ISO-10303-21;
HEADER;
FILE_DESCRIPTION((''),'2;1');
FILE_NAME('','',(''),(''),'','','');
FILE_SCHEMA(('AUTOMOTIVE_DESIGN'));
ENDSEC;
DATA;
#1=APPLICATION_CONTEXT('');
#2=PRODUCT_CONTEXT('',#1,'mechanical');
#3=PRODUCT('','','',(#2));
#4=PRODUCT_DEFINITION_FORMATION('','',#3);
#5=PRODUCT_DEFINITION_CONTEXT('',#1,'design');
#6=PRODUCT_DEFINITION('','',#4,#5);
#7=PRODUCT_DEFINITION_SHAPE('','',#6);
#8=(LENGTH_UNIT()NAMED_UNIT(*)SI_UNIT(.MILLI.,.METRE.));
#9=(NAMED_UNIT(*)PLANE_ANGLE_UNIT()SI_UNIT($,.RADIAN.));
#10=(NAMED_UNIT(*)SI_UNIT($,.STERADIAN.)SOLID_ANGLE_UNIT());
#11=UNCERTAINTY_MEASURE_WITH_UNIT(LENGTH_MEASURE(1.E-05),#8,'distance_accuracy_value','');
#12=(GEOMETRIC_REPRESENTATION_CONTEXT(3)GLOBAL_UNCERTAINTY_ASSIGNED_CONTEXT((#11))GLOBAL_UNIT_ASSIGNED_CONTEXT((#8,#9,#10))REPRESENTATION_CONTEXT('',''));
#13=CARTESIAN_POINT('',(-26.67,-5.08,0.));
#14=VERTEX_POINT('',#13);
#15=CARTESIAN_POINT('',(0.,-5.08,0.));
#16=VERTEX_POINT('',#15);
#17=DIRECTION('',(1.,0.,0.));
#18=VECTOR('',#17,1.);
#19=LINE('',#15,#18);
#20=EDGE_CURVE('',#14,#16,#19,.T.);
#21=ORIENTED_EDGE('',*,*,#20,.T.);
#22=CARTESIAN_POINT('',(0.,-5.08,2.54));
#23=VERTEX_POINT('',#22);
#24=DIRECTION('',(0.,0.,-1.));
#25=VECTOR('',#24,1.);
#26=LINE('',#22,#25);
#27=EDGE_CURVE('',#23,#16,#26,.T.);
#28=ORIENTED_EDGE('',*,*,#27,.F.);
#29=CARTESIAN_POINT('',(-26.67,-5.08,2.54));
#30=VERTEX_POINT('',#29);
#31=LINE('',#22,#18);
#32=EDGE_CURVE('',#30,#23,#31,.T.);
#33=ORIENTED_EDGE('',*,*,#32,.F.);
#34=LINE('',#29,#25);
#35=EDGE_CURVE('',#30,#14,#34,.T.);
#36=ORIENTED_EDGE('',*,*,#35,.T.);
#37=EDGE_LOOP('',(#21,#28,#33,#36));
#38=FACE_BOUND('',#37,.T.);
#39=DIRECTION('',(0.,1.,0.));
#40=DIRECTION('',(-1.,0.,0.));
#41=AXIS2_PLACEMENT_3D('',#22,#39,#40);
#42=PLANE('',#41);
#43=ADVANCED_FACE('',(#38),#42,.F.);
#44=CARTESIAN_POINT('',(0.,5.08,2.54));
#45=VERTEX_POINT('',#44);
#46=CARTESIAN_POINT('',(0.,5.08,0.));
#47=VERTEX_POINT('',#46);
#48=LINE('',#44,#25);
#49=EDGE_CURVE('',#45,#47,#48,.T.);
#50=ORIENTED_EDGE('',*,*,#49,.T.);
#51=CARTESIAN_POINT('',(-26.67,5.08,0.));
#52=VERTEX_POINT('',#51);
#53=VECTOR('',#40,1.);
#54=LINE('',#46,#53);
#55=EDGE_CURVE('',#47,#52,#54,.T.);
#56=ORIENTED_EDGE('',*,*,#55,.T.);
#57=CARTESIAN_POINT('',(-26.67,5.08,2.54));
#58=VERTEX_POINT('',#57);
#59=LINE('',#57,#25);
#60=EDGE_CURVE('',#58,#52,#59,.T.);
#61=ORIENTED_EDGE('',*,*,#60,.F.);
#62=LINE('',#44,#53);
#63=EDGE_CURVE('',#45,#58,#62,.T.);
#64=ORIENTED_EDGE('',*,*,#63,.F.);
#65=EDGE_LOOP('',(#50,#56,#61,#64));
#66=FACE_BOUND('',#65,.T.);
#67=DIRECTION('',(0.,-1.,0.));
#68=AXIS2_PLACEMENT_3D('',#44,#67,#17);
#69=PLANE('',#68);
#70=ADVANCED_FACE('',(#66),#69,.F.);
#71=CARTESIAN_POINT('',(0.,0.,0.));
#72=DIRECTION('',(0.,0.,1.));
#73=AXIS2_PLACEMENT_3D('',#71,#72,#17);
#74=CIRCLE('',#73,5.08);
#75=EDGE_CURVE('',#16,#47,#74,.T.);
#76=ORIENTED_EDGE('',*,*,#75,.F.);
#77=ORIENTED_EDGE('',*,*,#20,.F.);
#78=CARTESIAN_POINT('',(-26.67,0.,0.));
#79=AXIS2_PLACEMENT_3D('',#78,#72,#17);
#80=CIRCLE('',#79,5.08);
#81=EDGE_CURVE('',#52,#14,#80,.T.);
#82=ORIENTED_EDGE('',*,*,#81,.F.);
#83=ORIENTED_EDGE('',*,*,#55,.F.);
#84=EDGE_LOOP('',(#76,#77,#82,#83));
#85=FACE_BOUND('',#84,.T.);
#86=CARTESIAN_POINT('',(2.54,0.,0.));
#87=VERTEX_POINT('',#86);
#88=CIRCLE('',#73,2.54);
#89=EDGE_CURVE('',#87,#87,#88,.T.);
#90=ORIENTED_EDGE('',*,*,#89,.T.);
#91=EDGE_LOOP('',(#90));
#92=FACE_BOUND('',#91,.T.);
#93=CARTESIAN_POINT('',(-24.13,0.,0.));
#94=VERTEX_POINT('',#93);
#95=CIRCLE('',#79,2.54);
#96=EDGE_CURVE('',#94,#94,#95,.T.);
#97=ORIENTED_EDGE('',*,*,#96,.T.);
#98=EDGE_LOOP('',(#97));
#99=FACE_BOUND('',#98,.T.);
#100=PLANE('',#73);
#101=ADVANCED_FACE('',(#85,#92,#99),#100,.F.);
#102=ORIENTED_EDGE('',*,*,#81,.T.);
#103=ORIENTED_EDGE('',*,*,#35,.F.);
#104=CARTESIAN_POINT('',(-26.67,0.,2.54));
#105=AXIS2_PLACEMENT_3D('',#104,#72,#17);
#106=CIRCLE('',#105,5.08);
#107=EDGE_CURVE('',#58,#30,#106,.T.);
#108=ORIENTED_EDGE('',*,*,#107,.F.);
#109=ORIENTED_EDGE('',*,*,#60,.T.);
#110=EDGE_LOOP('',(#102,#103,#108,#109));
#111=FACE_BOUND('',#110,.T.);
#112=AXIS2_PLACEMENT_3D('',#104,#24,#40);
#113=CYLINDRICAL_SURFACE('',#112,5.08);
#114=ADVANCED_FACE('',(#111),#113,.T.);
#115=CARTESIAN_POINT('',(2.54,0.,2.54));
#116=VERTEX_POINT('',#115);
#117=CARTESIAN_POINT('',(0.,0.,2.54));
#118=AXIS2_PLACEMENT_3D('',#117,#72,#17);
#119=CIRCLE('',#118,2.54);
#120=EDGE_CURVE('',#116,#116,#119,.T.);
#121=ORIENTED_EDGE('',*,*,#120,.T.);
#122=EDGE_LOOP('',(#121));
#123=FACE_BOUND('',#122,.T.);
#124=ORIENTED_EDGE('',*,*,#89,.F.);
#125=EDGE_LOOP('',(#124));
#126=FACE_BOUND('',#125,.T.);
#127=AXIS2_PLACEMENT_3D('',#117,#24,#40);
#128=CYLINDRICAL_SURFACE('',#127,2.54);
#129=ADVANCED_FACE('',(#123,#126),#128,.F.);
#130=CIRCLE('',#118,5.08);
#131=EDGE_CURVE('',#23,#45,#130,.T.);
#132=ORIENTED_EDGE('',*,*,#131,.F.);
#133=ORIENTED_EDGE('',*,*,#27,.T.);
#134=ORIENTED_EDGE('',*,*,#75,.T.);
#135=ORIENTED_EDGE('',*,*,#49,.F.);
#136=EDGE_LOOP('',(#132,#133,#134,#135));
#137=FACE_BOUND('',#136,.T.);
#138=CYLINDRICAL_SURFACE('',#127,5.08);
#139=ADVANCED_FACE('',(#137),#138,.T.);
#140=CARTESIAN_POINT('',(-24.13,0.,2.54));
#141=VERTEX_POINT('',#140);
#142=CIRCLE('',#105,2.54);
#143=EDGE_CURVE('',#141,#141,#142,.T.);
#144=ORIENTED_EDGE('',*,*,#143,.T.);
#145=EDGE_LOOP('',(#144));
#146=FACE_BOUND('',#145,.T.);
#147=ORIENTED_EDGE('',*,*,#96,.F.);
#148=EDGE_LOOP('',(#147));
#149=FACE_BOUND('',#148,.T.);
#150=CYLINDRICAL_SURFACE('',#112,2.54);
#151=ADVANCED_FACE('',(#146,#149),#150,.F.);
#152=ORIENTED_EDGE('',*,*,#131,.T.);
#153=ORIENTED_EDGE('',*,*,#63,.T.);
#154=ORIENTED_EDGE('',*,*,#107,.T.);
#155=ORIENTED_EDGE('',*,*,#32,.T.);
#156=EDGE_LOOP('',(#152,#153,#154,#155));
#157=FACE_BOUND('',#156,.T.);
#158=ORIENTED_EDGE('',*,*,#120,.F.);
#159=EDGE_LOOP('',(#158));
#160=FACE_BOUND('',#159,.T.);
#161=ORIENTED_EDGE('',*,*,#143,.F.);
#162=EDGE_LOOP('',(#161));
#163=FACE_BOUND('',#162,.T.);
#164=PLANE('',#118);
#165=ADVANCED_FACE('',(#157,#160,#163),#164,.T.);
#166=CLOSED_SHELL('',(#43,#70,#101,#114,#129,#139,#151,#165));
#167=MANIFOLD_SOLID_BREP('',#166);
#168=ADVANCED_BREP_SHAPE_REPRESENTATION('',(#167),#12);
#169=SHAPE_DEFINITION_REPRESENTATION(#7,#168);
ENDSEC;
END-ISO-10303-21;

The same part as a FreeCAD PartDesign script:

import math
import FreeCAD as App
import Part
import Sketcher

V = App.Vector
Q = App.Units.Quantity

doc = App.newDocument("Part")
body = doc.addObject("PartDesign::Body", "Body")

# Sketch on XY plane
sketch1 = body.newObject("Sketcher::SketchObject", "Sketch")
sketch1.AttachmentSupport = (doc.getObject("XY_Plane"), [""])
sketch1.MapMode = "FlatFace"
sketch1.addGeometry(Part.LineSegment(V(-26.7, -5.1, 0), V(0, -5.1, 0)), False)
sketch1.addGeometry(Part.ArcOfCircle(Part.Circle(V(0, 0, 0), V(0, 0, 1), 5.1), math.radians(-90), math.radians(90)), False)
sketch1.addGeometry(Part.LineSegment(V(0, 5.1, 0), V(-26.7, 5.1, 0)), False)
sketch1.addGeometry(Part.ArcOfCircle(Part.Circle(V(-26.7, 0, 0), V(0, 0, 1), 5.1), math.radians(90), math.radians(270)), False)
sketch1.addGeometry(Part.Circle(V(0, 0, 0), V(0, 0, 1), 2.5), False)
sketch1.addGeometry(Part.Circle(V(-26.7, 0, 0), V(0, 0, 1), 2.5), False)
sketch1.addConstraint(Sketcher.Constraint("Tangent", 0, 2, 1, 1))
sketch1.addConstraint(Sketcher.Constraint("Tangent", 1, 2, 2, 1))
sketch1.addConstraint(Sketcher.Constraint("Tangent", 2, 2, 3, 1))
sketch1.addConstraint(Sketcher.Constraint("Tangent", 3, 2, 0, 1))
sketch1.addConstraint(Sketcher.Constraint("Horizontal", 0))
sketch1.addConstraint(Sketcher.Constraint("Horizontal", 2))
sketch1.addConstraint(Sketcher.Constraint("Coincident", 1, 3, -1, 1))
sketch1.addConstraint(Sketcher.Constraint("Coincident", 4, 3, -1, 1))
sketch1.addConstraint(Sketcher.Constraint("Coincident", 5, 3, 3, 3))
sketch1.addConstraint(Sketcher.Constraint("Equal", 4, 5))
sketch1.addConstraint(Sketcher.Constraint("Diameter", 4, Q("0.2 in")))
sketch1.addConstraint(Sketcher.Constraint("Radius", 1, Q("0.2 in")))
sketch1.addConstraint(Sketcher.Constraint("DistanceX", 0, 1, 0, 2, Q("1.05 in")))
pad1 = body.newObject("PartDesign::Pad", "Pad")
pad1.Profile = sketch1
pad1.Length = Q("0.1 in")

doc.recompute()
